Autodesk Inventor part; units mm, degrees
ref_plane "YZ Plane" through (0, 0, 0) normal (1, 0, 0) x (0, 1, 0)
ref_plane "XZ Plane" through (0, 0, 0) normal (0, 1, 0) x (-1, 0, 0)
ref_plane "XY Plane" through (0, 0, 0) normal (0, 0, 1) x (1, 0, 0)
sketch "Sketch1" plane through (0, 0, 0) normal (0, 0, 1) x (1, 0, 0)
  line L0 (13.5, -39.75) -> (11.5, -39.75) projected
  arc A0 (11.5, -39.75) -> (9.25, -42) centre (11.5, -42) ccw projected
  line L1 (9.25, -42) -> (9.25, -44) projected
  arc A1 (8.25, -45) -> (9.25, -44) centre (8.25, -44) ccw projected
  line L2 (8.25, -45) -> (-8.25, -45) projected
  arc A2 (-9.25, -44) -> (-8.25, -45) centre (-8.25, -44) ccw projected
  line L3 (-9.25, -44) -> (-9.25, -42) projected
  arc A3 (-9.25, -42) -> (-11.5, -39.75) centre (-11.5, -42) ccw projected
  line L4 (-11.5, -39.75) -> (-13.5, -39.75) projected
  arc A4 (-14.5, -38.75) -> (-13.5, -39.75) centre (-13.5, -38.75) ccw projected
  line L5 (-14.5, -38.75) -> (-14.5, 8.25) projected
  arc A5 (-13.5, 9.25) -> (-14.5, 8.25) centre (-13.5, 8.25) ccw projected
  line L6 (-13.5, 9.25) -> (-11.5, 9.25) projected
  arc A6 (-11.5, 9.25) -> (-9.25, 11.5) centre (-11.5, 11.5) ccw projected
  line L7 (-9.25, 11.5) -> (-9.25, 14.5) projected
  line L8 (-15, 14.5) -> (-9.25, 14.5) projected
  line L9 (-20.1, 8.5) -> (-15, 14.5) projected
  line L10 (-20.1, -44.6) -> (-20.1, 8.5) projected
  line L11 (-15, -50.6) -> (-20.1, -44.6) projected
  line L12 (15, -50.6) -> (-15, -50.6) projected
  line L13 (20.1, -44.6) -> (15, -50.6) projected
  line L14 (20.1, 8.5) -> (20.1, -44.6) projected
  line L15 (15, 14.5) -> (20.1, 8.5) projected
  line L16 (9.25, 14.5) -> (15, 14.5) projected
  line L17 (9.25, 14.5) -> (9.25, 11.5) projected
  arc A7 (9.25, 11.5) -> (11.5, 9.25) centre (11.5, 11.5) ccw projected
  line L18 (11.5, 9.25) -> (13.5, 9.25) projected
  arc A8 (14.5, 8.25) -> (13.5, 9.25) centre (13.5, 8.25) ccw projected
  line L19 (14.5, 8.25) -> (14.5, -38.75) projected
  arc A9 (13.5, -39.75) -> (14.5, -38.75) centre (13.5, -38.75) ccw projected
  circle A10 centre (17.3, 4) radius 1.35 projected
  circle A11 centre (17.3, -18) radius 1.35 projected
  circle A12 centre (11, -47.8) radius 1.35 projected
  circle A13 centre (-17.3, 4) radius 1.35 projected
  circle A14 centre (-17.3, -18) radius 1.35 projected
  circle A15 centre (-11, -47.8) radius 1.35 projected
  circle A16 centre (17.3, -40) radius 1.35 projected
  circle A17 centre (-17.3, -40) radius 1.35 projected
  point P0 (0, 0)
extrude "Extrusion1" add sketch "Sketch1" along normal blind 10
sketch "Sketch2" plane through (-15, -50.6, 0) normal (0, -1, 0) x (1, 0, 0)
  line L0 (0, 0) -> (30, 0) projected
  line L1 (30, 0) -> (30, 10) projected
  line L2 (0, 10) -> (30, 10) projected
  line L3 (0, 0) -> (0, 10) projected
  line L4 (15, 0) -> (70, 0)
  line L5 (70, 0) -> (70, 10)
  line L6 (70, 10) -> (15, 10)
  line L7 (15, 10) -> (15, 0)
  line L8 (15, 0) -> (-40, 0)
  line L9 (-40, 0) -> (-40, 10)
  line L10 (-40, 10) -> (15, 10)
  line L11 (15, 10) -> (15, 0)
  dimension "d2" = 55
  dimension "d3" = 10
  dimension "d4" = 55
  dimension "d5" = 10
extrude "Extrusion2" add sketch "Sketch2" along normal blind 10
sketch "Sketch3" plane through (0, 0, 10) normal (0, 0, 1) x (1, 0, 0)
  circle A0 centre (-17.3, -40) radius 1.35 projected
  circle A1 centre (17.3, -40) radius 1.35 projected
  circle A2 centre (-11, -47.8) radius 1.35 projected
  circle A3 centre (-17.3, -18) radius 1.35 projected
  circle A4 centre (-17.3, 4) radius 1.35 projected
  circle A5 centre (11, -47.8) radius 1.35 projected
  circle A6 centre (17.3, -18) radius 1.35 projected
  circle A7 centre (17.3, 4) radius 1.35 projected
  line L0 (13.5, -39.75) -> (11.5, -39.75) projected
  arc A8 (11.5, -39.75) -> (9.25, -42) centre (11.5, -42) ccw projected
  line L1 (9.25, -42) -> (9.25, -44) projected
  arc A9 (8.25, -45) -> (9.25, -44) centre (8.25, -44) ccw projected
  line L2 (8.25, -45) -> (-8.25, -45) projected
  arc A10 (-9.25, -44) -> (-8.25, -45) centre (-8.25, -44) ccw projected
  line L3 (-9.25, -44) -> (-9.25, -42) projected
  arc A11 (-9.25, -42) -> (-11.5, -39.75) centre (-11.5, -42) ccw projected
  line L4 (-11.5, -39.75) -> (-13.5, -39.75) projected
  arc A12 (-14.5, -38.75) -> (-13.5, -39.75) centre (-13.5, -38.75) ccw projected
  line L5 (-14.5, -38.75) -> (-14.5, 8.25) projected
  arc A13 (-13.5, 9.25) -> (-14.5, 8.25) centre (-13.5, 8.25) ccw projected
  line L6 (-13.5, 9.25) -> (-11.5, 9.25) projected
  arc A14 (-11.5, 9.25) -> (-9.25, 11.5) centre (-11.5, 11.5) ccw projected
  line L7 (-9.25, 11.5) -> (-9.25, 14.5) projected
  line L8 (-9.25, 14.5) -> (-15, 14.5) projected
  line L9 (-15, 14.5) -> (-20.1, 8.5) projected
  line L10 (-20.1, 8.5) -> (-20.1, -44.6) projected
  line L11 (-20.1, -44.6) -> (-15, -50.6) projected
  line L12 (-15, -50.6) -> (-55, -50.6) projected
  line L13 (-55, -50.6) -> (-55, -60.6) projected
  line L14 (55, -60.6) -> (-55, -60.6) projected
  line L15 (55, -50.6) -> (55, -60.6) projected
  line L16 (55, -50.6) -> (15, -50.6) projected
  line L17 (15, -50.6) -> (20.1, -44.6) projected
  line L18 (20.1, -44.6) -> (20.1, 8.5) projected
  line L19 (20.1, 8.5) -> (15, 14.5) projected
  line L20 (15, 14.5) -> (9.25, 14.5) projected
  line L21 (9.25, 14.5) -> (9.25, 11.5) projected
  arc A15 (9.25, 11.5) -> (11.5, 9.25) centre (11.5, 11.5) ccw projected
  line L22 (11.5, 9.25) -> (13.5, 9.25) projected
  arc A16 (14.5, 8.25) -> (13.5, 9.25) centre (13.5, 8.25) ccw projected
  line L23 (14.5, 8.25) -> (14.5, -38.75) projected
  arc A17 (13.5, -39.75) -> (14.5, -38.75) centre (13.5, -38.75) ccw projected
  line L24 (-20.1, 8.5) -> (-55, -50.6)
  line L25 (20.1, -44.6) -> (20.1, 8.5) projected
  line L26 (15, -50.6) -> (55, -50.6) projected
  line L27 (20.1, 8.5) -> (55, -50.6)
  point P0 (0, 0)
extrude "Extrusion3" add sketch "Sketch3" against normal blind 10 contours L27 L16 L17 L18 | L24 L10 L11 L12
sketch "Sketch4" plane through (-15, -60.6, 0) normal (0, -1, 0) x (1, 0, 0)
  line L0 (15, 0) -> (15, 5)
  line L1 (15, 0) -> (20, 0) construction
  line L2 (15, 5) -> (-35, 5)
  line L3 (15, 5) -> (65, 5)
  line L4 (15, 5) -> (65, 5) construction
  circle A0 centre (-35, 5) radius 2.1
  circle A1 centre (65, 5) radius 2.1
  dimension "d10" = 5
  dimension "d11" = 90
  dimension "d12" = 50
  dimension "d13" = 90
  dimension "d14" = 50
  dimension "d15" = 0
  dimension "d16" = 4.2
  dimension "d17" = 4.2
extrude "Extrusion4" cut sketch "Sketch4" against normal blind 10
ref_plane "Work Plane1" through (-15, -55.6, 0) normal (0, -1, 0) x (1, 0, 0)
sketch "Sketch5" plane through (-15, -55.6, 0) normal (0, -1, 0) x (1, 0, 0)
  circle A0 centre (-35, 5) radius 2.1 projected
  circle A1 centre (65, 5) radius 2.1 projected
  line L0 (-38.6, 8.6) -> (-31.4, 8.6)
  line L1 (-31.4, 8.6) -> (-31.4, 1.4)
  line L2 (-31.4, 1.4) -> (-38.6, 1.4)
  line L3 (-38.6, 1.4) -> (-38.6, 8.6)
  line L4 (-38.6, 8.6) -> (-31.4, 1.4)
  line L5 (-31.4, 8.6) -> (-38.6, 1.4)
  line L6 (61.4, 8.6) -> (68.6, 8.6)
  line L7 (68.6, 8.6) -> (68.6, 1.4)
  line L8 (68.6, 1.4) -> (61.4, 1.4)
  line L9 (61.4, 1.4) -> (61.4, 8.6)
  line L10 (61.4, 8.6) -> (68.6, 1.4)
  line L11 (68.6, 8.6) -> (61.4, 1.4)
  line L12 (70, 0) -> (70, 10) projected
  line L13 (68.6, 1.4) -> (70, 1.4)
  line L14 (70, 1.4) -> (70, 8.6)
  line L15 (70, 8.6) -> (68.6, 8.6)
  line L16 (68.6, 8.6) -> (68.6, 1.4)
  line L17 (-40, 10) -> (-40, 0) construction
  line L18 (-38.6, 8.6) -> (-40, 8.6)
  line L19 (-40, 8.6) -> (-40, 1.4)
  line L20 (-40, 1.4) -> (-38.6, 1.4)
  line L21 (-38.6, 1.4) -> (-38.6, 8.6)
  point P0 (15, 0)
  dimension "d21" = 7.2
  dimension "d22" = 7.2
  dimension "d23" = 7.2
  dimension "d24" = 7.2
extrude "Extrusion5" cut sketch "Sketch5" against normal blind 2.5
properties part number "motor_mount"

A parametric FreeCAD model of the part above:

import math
import FreeCAD as App
import Part
import Sketcher

V = App.Vector

doc = App.newDocument("Part")
body = doc.addObject("PartDesign::Body", "Body")

sketch1 = doc.addObject("Sketcher::SketchObject", "Sketch")
body.addObject(sketch1)
sketch1.AttachmentSupport = (doc.XY_Plane, [""])
sketch1.MapMode = "FlatFace"
sketch1.addGeometry([
    Part.ArcOfCircle(Part.Circle(V(13.5, -38.75, 0), V(0, 0, 1), 1), math.radians(-90), math.radians(0)),
    Part.LineSegment(V(13.5, -39.75, 0), V(11.5, -39.75, 0)),
    Part.ArcOfCircle(Part.Circle(V(11.5, -42, 0), V(0, 0, 1), 2.25), math.radians(90), math.radians(180)),
    Part.LineSegment(V(9.25, -42, 0), V(9.25, -44, 0)),
    Part.ArcOfCircle(Part.Circle(V(8.25, -44, 0), V(0, 0, 1), 1), math.radians(-90), math.radians(0)),
    Part.LineSegment(V(8.25, -45, 0), V(-8.25, -45, 0)),
    Part.ArcOfCircle(Part.Circle(V(-8.25, -44, 0), V(0, 0, 1), 1), math.radians(180), math.radians(270)),
    Part.LineSegment(V(-9.25, -44, 0), V(-9.25, -42, 0)),
    Part.ArcOfCircle(Part.Circle(V(-11.5, -42, 0), V(0, 0, 1), 2.25), math.radians(0), math.radians(90)),
    Part.LineSegment(V(-11.5, -39.75, 0), V(-13.5, -39.75, 0)),
    Part.ArcOfCircle(Part.Circle(V(-13.5, -38.75, 0), V(0, 0, 1), 1), math.radians(180), math.radians(270)),
    Part.LineSegment(V(-14.5, -38.75, 0), V(-14.5, 8.25, 0)),
    Part.ArcOfCircle(Part.Circle(V(-13.5, 8.25, 0), V(0, 0, 1), 1), math.radians(90), math.radians(180)),
    Part.LineSegment(V(-13.5, 9.25, 0), V(-11.5, 9.25, 0)),
    Part.ArcOfCircle(Part.Circle(V(-11.5, 11.5, 0), V(0, 0, 1), 2.25), math.radians(-90), math.radians(0)),
    Part.LineSegment(V(-9.25, 11.5, 0), V(-9.25, 14.5, 0)),
    Part.LineSegment(V(-9.25, 14.5, 0), V(-15, 14.5, 0)),
    Part.LineSegment(V(-15, 14.5, 0), V(-20.1, 8.5, 0)),
    Part.LineSegment(V(-20.1, 8.5, 0), V(-20.1, -44.6, 0)),
    Part.LineSegment(V(-20.1, -44.6, 0), V(-15, -50.6, 0)),
    Part.LineSegment(V(-15, -50.6, 0), V(15, -50.6, 0)),
    Part.LineSegment(V(15, -50.6, 0), V(20.1, -44.6, 0)),
    Part.LineSegment(V(20.1, -44.6, 0), V(20.1, 8.5, 0)),
    Part.LineSegment(V(20.1, 8.5, 0), V(15, 14.5, 0)),
    Part.LineSegment(V(15, 14.5, 0), V(9.25, 14.5, 0)),
    Part.LineSegment(V(9.25, 14.5, 0), V(9.25, 11.5, 0)),
    Part.ArcOfCircle(Part.Circle(V(11.5, 11.5, 0), V(0, 0, 1), 2.25), math.radians(180), math.radians(270)),
    Part.LineSegment(V(11.5, 9.25, 0), V(13.5, 9.25, 0)),
    Part.ArcOfCircle(Part.Circle(V(13.5, 8.25, 0), V(0, 0, 1), 1), math.radians(0), math.radians(90)),
    Part.LineSegment(V(14.5, 8.25, 0), V(14.5, -38.75, 0)),
    Part.Circle(V(-11, -47.8, 0), V(0, 0, 1), 1.35),
    Part.Circle(V(-17.3, -40, 0), V(0, 0, 1), 1.35),
    Part.Circle(V(11, -47.8, 0), V(0, 0, 1), 1.35),
    Part.Circle(V(17.3, -40, 0), V(0, 0, 1), 1.35),
    Part.Circle(V(-17.3, -18, 0), V(0, 0, 1), 1.35),
    Part.Circle(V(-17.3, 4, 0), V(0, 0, 1), 1.35),
    Part.Circle(V(17.3, -18, 0), V(0, 0, 1), 1.35),
    Part.Circle(V(17.3, 4, 0), V(0, 0, 1), 1.35),
], False)
sketch1.addConstraint([
    Sketcher.Constraint("Tangent", 0, 1, 1, 1),
    Sketcher.Constraint("Tangent", 1, 2, 2, 1),
    Sketcher.Constraint("Tangent", 2, 2, 3, 1),
    Sketcher.Constraint("Tangent", 3, 2, 4, 2),
    Sketcher.Constraint("Tangent", 4, 1, 5, 1),
    Sketcher.Constraint("Tangent", 5, 2, 6, 2),
    Sketcher.Constraint("Tangent", 6, 1, 7, 1),
    Sketcher.Constraint("Tangent", 7, 2, 8, 1),
    Sketcher.Constraint("Tangent", 8, 2, 9, 1),
    Sketcher.Constraint("Tangent", 9, 2, 10, 2),
    Sketcher.Constraint("Tangent", 10, 1, 11, 1),
    Sketcher.Constraint("Tangent", 11, 2, 12, 2),
    Sketcher.Constraint("Tangent", 12, 1, 13, 1),
    Sketcher.Constraint("Tangent", 13, 2, 14, 1),
    Sketcher.Constraint("Tangent", 14, 2, 15, 1),
    Sketcher.Constraint("Coincident", 15, 2, 16, 1),
    Sketcher.Constraint("Coincident", 16, 2, 17, 1),
    Sketcher.Constraint("Coincident", 17, 2, 18, 1),
    Sketcher.Constraint("Coincident", 18, 2, 19, 1),
    Sketcher.Constraint("Coincident", 19, 2, 20, 1),
    Sketcher.Constraint("Coincident", 20, 2, 21, 1),
    Sketcher.Constraint("Coincident", 21, 2, 22, 1),
    Sketcher.Constraint("Coincident", 22, 2, 23, 1),
    Sketcher.Constraint("Coincident", 23, 2, 24, 1),
    Sketcher.Constraint("Coincident", 24, 2, 25, 1),
    Sketcher.Constraint("Tangent", 25, 2, 26, 1),
    Sketcher.Constraint("Tangent", 26, 2, 27, 1),
    Sketcher.Constraint("Tangent", 27, 2, 28, 2),
    Sketcher.Constraint("Tangent", 28, 1, 29, 1),
    Sketcher.Constraint("Tangent", 29, 2, 0, 2),
    Sketcher.Constraint("Horizontal", 1),
    Sketcher.Constraint("Vertical", 3),
    Sketcher.Constraint("Horizontal", 5),
    Sketcher.Constraint("Vertical", 7),
    Sketcher.Constraint("Horizontal", 9),
    Sketcher.Constraint("Vertical", 11),
    Sketcher.Constraint("Horizontal", 13),
    Sketcher.Constraint("Vertical", 15),
    Sketcher.Constraint("Horizontal", 16),
    Sketcher.Constraint("Vertical", 18),
    Sketcher.Constraint("Horizontal", 20),
    Sketcher.Constraint("Vertical", 22),
    Sketcher.Constraint("Horizontal", 24),
    Sketcher.Constraint("Vertical", 25),
    Sketcher.Constraint("Horizontal", 27),
    Sketcher.Constraint("Vertical", 29),
    Sketcher.Constraint("Equal", 0, 4),
    Sketcher.Constraint("Equal", 4, 6),
    Sketcher.Constraint("Equal", 2, 8),
    Sketcher.Constraint("Equal", 6, 10),
    Sketcher.Constraint("Equal", 10, 12),
    Sketcher.Constraint("Equal", 8, 14),
    Sketcher.Constraint("Equal", 14, 26),
    Sketcher.Constraint("Equal", 12, 28),
    Sketcher.Constraint("Equal", 30, 31),
    Sketcher.Constraint("Equal", 31, 32),
    Sketcher.Constraint("Equal", 32, 33),
    Sketcher.Constraint("Equal", 33, 34),
    Sketcher.Constraint("Equal", 34, 35),
    Sketcher.Constraint("Equal", 35, 36),
    Sketcher.Constraint("Equal", 36, 37),
    Sketcher.Constraint("Symmetric", 2, 3, 8, 3, -2),
    Sketcher.Constraint("Symmetric", 14, 3, 26, 3, -2),
    Sketcher.Constraint("Symmetric", 30, 3, 32, 3, -2),
    Sketcher.Constraint("Symmetric", 31, 3, 33, 3, -2),
    Sketcher.Constraint("Symmetric", 34, 3, 36, 3, -2),
    Sketcher.Constraint("Symmetric", 35, 3, 37, 3, -2),
    Sketcher.Constraint("Symmetric", 18, 2, 21, 2, -2),
    Sketcher.Constraint("Symmetric", 16, 2, 23, 2, -2),
    Sketcher.Constraint("Parallel", 17, 21),
    Sketcher.Constraint("Parallel", 19, 23),
    Sketcher.Constraint("Horizontal", 17, 2, 22, 2),
    Sketcher.Constraint("Vertical", 8, 3, 14, 3),
    Sketcher.Constraint("Vertical", 31, 3, 34, 3),
    Sketcher.Constraint("Vertical", 34, 3, 35, 3),
    Sketcher.Constraint("Vertical", 16, 2, 19, 2),
    Sketcher.Constraint("Equal", 1, 9),
    Sketcher.Constraint("Equal", 27, 3),
    Sketcher.Constraint("Radius", 0, 1.0),
    Sketcher.Constraint("Diameter", 30, 2.7),
    Sketcher.Constraint("DistanceX", 1, 2, 1, 1, 2.0),
    Sketcher.Constraint("DistanceX", 20, 1, 20, 2, 30.0),
    Sketcher.Constraint("DistanceY", 11, 1, 11, 2, 47.0),
    Sketcher.Constraint("DistanceY", 15, 1, 15, 2, 3.0),
    Sketcher.Constraint("Radius", 2, 2.25),
    Sketcher.Constraint("DistanceX", 5, 2, 5, 1, 16.5),
    Sketcher.Constraint("DistanceY", 18, 2, 18, 1, 53.1),
    Sketcher.Constraint("DistanceY", 2, 3, -1, 1, 42.0),
    Sketcher.Constraint("DistanceX", 30, 3, -1, 1, 11.0),
    Sketcher.Constraint("DistanceY", 31, 3, -1, 1, 40.0),
    Sketcher.Constraint("DistanceY", 34, 3, -1, 1, 18.0),
    Sketcher.Constraint("DistanceY", -1, 1, 35, 3, 4.0),
    Sketcher.Constraint("DistanceY", 17, 2, 16, 2, 6.0),
    Sketcher.Constraint("DistanceY", 30, 3, -1, 1, 47.8),
    Sketcher.Constraint("DistanceX", 31, 3, -1, 1, 17.3),
    Sketcher.Constraint("DistanceX", 17, 2, -1, 1, 20.1),
])
pad1 = doc.addObject("PartDesign::Pad", "Pad")
body.addObject(pad1)
pad1.Profile = sketch1
pad1.Length = 10

sketch2 = doc.addObject("Sketcher::SketchObject", "Sketch001")
body.addObject(sketch2)
sketch2.AttachmentSupport = (doc.XZ_Plane, [""])
sketch2.MapMode = "FlatFace"
sketch2.AttachmentOffset = App.Placement(V(0, 0, 50.6), App.Rotation())
sketch2.addGeometry([
    Part.LineSegment(V(-55, 10, 0), V(-55, 0, 0)),
    Part.LineSegment(V(-55, 0, 0), V(55, 0, 0)),
    Part.LineSegment(V(55, 0, 0), V(55, 10, 0)),
    Part.LineSegment(V(55, 10, 0), V(-55, 10, 0)),
], False)
sketch2.addConstraint([
    Sketcher.Constraint("Coincident", 0, 2, 1, 1),
    Sketcher.Constraint("Coincident", 1, 2, 2, 1),
    Sketcher.Constraint("Coincident", 2, 2, 3, 1),
    Sketcher.Constraint("Coincident", 3, 2, 0, 1),
    Sketcher.Constraint("Vertical", 0),
    Sketcher.Constraint("Horizontal", 1),
    Sketcher.Constraint("Vertical", 2),
    Sketcher.Constraint("Horizontal", 3),
    Sketcher.Constraint("Symmetric", 0, 2, 1, 2, -1, 1),
    Sketcher.Constraint("DistanceY", 0, 2, 0, 1, 10.0),
    Sketcher.Constraint("DistanceX", 0, 2, -1, 1, 55.0),
])
pad2 = doc.addObject("PartDesign::Pad", "Pad001")
body.addObject(pad2)
pad2.Profile = sketch2
pad2.Length = 10

sketch3 = doc.addObject("Sketcher::SketchObject", "Sketch002")
body.addObject(sketch3)
sketch3.AttachmentSupport = (doc.XY_Plane, [""])
sketch3.MapMode = "FlatFace"
sketch3.AttachmentOffset = App.Placement(V(0, 0, 10), App.Rotation())
sketch3.addGeometry([
    Part.LineSegment(V(55, -50.6, 0), V(20.1, 8.5, 0)),
    Part.LineSegment(V(20.1, 8.5, 0), V(20.1, -44.6, 0)),
    Part.LineSegment(V(20.1, -44.6, 0), V(15, -50.6, 0)),
    Part.LineSegment(V(15, -50.6, 0), V(55, -50.6, 0)),
    Part.LineSegment(V(-20.1, 8.5, 0), V(-55, -50.6, 0)),
    Part.LineSegment(V(-55, -50.6, 0), V(-15, -50.6, 0)),
    Part.LineSegment(V(-15, -50.6, 0), V(-20.1, -44.6, 0)),
    Part.LineSegment(V(-20.1, -44.6, 0), V(-20.1, 8.5, 0)),
], False)
sketch3.addConstraint([
    Sketcher.Constraint("Coincident", 0, 2, 1, 1),
    Sketcher.Constraint("Coincident", 1, 2, 2, 1),
    Sketcher.Constraint("Coincident", 2, 2, 3, 1),
    Sketcher.Constraint("Coincident", 3, 2, 0, 1),
    Sketcher.Constraint("Coincident", 4, 2, 5, 1),
    Sketcher.Constraint("Coincident", 5, 2, 6, 1),
    Sketcher.Constraint("Coincident", 6, 2, 7, 1),
    Sketcher.Constraint("Coincident", 7, 2, 4, 1),
    Sketcher.Constraint("Vertical", 1),
    Sketcher.Constraint("Horizontal", 3),
    Sketcher.Constraint("Horizontal", 5),
    Sketcher.Constraint("Vertical", 7),
    Sketcher.Constraint("Symmetric", 3, 2, 4, 2, -2),
    Sketcher.Constraint("Symmetric", 1, 2, 6, 2, -2),
    Sketcher.Constraint("Horizontal", 0, 2, 7, 2),
    Sketcher.Constraint("Equal", 3, 5),
    Sketcher.Constraint("DistanceX", 3, 1, 3, 2, 40.0),
    Sketcher.Constraint("DistanceY", 1, 2, 1, 1, 53.1),
    Sketcher.Constraint("DistanceX", -1, 1, 2, 2, 15.0),
    Sketcher.Constraint("DistanceY", 2, 2, 1, 2, 6.0),
    Sketcher.Constraint("DistanceX", -1, 1, 0, 2, 20.1),
    Sketcher.Constraint("DistanceY", -1, 1, 0, 2, 8.5),
])
pad3 = doc.addObject("PartDesign::Pad", "Pad002")
body.addObject(pad3)
pad3.Profile = sketch3
pad3.Length = 10
pad3.Reversed = True

sketch4 = doc.addObject("Sketcher::SketchObject", "Sketch003")
body.addObject(sketch4)
sketch4.AttachmentSupport = (doc.XZ_Plane, [""])
sketch4.MapMode = "FlatFace"
sketch4.AttachmentOffset = App.Placement(V(0, 0, 60.6), App.Rotation())
sketch4.addGeometry([
    Part.Circle(V(-50, 5, 0), V(0, 0, 1), 2.1),
    Part.Circle(V(50, 5, 0), V(0, 0, 1), 2.1),
], False)
sketch4.addConstraint([
    Sketcher.Constraint("Equal", 0, 1),
    Sketcher.Constraint("Symmetric", 0, 3, 1, 3, -2),
    Sketcher.Constraint("Diameter", 0, 4.2),
    Sketcher.Constraint("DistanceX", 0, 3, -1, 1, 50.0),
    Sketcher.Constraint("DistanceY", -1, 1, 0, 3, 5.0),
])
pocket1 = doc.addObject("PartDesign::Pocket", "Pocket")
body.addObject(pocket1)
pocket1.Profile = sketch4
pocket1.Length = 10

sketch5 = doc.addObject("Sketcher::SketchObject", "Sketch004")
body.addObject(sketch5)
sketch5.AttachmentSupport = (doc.XZ_Plane, [""])
sketch5.MapMode = "FlatFace"
sketch5.AttachmentOffset = App.Placement(V(0, 0, 55.6), App.Rotation())
sketch5.addGeometry([
    Part.LineSegment(V(-46.4, 1.4, 0), V(-46.4, 8.6, 0)),
    Part.LineSegment(V(-46.4, 8.6, 0), V(-55, 8.6, 0)),
    Part.LineSegment(V(-55, 8.6, 0), V(-55, 1.4, 0)),
    Part.LineSegment(V(-55, 1.4, 0), V(-46.4, 1.4, 0)),
    Part.LineSegment(V(46.4, 1.4, 0), V(55, 1.4, 0)),
    Part.LineSegment(V(55, 1.4, 0), V(55, 8.6, 0)),
    Part.LineSegment(V(55, 8.6, 0), V(46.4, 8.6, 0)),
    Part.LineSegment(V(46.4, 8.6, 0), V(46.4, 1.4, 0)),
], False)
sketch5.addConstraint([
    Sketcher.Constraint("Coincident", 0, 2, 1, 1),
    Sketcher.Constraint("Coincident", 1, 2, 2, 1),
    Sketcher.Constraint("Coincident", 2, 2, 3, 1),
    Sketcher.Constraint("Coincident", 3, 2, 0, 1),
    Sketcher.Constraint("Coincident", 4, 2, 5, 1),
    Sketcher.Constraint("Coincident", 5, 2, 6, 1),
    Sketcher.Constraint("Coincident", 6, 2, 7, 1),
    Sketcher.Constraint("Coincident", 7, 2, 4, 1),
    Sketcher.Constraint("Vertical", 0),
    Sketcher.Constraint("Horizontal", 1),
    Sketcher.Constraint("Vertical", 2),
    Sketcher.Constraint("Horizontal", 3),
    Sketcher.Constraint("Horizontal", 4),
    Sketcher.Constraint("Vertical", 5),
    Sketcher.Constraint("Horizontal", 6),
    Sketcher.Constraint("Vertical", 7),
    Sketcher.Constraint("Symmetric", 2, 2, 4, 2, -2),
    Sketcher.Constraint("Symmetric", 0, 2, 6, 2, -2),
    Sketcher.Constraint("DistanceY", 0, 1, 0, 2, 7.2),
    Sketcher.Constraint("DistanceX", 1, 2, 1, 1, 8.6),
    Sketcher.Constraint("DistanceX", 1, 2, -1, 1, 55.0),
    Sketcher.Constraint("DistanceY", -1, 1, 0, 2, 8.6),
])
pocket2 = doc.addObject("PartDesign::Pocket", "Pocket001")
body.addObject(pocket2)
pocket2.Profile = sketch5
pocket2.Length = 2.5

doc.recompute()
